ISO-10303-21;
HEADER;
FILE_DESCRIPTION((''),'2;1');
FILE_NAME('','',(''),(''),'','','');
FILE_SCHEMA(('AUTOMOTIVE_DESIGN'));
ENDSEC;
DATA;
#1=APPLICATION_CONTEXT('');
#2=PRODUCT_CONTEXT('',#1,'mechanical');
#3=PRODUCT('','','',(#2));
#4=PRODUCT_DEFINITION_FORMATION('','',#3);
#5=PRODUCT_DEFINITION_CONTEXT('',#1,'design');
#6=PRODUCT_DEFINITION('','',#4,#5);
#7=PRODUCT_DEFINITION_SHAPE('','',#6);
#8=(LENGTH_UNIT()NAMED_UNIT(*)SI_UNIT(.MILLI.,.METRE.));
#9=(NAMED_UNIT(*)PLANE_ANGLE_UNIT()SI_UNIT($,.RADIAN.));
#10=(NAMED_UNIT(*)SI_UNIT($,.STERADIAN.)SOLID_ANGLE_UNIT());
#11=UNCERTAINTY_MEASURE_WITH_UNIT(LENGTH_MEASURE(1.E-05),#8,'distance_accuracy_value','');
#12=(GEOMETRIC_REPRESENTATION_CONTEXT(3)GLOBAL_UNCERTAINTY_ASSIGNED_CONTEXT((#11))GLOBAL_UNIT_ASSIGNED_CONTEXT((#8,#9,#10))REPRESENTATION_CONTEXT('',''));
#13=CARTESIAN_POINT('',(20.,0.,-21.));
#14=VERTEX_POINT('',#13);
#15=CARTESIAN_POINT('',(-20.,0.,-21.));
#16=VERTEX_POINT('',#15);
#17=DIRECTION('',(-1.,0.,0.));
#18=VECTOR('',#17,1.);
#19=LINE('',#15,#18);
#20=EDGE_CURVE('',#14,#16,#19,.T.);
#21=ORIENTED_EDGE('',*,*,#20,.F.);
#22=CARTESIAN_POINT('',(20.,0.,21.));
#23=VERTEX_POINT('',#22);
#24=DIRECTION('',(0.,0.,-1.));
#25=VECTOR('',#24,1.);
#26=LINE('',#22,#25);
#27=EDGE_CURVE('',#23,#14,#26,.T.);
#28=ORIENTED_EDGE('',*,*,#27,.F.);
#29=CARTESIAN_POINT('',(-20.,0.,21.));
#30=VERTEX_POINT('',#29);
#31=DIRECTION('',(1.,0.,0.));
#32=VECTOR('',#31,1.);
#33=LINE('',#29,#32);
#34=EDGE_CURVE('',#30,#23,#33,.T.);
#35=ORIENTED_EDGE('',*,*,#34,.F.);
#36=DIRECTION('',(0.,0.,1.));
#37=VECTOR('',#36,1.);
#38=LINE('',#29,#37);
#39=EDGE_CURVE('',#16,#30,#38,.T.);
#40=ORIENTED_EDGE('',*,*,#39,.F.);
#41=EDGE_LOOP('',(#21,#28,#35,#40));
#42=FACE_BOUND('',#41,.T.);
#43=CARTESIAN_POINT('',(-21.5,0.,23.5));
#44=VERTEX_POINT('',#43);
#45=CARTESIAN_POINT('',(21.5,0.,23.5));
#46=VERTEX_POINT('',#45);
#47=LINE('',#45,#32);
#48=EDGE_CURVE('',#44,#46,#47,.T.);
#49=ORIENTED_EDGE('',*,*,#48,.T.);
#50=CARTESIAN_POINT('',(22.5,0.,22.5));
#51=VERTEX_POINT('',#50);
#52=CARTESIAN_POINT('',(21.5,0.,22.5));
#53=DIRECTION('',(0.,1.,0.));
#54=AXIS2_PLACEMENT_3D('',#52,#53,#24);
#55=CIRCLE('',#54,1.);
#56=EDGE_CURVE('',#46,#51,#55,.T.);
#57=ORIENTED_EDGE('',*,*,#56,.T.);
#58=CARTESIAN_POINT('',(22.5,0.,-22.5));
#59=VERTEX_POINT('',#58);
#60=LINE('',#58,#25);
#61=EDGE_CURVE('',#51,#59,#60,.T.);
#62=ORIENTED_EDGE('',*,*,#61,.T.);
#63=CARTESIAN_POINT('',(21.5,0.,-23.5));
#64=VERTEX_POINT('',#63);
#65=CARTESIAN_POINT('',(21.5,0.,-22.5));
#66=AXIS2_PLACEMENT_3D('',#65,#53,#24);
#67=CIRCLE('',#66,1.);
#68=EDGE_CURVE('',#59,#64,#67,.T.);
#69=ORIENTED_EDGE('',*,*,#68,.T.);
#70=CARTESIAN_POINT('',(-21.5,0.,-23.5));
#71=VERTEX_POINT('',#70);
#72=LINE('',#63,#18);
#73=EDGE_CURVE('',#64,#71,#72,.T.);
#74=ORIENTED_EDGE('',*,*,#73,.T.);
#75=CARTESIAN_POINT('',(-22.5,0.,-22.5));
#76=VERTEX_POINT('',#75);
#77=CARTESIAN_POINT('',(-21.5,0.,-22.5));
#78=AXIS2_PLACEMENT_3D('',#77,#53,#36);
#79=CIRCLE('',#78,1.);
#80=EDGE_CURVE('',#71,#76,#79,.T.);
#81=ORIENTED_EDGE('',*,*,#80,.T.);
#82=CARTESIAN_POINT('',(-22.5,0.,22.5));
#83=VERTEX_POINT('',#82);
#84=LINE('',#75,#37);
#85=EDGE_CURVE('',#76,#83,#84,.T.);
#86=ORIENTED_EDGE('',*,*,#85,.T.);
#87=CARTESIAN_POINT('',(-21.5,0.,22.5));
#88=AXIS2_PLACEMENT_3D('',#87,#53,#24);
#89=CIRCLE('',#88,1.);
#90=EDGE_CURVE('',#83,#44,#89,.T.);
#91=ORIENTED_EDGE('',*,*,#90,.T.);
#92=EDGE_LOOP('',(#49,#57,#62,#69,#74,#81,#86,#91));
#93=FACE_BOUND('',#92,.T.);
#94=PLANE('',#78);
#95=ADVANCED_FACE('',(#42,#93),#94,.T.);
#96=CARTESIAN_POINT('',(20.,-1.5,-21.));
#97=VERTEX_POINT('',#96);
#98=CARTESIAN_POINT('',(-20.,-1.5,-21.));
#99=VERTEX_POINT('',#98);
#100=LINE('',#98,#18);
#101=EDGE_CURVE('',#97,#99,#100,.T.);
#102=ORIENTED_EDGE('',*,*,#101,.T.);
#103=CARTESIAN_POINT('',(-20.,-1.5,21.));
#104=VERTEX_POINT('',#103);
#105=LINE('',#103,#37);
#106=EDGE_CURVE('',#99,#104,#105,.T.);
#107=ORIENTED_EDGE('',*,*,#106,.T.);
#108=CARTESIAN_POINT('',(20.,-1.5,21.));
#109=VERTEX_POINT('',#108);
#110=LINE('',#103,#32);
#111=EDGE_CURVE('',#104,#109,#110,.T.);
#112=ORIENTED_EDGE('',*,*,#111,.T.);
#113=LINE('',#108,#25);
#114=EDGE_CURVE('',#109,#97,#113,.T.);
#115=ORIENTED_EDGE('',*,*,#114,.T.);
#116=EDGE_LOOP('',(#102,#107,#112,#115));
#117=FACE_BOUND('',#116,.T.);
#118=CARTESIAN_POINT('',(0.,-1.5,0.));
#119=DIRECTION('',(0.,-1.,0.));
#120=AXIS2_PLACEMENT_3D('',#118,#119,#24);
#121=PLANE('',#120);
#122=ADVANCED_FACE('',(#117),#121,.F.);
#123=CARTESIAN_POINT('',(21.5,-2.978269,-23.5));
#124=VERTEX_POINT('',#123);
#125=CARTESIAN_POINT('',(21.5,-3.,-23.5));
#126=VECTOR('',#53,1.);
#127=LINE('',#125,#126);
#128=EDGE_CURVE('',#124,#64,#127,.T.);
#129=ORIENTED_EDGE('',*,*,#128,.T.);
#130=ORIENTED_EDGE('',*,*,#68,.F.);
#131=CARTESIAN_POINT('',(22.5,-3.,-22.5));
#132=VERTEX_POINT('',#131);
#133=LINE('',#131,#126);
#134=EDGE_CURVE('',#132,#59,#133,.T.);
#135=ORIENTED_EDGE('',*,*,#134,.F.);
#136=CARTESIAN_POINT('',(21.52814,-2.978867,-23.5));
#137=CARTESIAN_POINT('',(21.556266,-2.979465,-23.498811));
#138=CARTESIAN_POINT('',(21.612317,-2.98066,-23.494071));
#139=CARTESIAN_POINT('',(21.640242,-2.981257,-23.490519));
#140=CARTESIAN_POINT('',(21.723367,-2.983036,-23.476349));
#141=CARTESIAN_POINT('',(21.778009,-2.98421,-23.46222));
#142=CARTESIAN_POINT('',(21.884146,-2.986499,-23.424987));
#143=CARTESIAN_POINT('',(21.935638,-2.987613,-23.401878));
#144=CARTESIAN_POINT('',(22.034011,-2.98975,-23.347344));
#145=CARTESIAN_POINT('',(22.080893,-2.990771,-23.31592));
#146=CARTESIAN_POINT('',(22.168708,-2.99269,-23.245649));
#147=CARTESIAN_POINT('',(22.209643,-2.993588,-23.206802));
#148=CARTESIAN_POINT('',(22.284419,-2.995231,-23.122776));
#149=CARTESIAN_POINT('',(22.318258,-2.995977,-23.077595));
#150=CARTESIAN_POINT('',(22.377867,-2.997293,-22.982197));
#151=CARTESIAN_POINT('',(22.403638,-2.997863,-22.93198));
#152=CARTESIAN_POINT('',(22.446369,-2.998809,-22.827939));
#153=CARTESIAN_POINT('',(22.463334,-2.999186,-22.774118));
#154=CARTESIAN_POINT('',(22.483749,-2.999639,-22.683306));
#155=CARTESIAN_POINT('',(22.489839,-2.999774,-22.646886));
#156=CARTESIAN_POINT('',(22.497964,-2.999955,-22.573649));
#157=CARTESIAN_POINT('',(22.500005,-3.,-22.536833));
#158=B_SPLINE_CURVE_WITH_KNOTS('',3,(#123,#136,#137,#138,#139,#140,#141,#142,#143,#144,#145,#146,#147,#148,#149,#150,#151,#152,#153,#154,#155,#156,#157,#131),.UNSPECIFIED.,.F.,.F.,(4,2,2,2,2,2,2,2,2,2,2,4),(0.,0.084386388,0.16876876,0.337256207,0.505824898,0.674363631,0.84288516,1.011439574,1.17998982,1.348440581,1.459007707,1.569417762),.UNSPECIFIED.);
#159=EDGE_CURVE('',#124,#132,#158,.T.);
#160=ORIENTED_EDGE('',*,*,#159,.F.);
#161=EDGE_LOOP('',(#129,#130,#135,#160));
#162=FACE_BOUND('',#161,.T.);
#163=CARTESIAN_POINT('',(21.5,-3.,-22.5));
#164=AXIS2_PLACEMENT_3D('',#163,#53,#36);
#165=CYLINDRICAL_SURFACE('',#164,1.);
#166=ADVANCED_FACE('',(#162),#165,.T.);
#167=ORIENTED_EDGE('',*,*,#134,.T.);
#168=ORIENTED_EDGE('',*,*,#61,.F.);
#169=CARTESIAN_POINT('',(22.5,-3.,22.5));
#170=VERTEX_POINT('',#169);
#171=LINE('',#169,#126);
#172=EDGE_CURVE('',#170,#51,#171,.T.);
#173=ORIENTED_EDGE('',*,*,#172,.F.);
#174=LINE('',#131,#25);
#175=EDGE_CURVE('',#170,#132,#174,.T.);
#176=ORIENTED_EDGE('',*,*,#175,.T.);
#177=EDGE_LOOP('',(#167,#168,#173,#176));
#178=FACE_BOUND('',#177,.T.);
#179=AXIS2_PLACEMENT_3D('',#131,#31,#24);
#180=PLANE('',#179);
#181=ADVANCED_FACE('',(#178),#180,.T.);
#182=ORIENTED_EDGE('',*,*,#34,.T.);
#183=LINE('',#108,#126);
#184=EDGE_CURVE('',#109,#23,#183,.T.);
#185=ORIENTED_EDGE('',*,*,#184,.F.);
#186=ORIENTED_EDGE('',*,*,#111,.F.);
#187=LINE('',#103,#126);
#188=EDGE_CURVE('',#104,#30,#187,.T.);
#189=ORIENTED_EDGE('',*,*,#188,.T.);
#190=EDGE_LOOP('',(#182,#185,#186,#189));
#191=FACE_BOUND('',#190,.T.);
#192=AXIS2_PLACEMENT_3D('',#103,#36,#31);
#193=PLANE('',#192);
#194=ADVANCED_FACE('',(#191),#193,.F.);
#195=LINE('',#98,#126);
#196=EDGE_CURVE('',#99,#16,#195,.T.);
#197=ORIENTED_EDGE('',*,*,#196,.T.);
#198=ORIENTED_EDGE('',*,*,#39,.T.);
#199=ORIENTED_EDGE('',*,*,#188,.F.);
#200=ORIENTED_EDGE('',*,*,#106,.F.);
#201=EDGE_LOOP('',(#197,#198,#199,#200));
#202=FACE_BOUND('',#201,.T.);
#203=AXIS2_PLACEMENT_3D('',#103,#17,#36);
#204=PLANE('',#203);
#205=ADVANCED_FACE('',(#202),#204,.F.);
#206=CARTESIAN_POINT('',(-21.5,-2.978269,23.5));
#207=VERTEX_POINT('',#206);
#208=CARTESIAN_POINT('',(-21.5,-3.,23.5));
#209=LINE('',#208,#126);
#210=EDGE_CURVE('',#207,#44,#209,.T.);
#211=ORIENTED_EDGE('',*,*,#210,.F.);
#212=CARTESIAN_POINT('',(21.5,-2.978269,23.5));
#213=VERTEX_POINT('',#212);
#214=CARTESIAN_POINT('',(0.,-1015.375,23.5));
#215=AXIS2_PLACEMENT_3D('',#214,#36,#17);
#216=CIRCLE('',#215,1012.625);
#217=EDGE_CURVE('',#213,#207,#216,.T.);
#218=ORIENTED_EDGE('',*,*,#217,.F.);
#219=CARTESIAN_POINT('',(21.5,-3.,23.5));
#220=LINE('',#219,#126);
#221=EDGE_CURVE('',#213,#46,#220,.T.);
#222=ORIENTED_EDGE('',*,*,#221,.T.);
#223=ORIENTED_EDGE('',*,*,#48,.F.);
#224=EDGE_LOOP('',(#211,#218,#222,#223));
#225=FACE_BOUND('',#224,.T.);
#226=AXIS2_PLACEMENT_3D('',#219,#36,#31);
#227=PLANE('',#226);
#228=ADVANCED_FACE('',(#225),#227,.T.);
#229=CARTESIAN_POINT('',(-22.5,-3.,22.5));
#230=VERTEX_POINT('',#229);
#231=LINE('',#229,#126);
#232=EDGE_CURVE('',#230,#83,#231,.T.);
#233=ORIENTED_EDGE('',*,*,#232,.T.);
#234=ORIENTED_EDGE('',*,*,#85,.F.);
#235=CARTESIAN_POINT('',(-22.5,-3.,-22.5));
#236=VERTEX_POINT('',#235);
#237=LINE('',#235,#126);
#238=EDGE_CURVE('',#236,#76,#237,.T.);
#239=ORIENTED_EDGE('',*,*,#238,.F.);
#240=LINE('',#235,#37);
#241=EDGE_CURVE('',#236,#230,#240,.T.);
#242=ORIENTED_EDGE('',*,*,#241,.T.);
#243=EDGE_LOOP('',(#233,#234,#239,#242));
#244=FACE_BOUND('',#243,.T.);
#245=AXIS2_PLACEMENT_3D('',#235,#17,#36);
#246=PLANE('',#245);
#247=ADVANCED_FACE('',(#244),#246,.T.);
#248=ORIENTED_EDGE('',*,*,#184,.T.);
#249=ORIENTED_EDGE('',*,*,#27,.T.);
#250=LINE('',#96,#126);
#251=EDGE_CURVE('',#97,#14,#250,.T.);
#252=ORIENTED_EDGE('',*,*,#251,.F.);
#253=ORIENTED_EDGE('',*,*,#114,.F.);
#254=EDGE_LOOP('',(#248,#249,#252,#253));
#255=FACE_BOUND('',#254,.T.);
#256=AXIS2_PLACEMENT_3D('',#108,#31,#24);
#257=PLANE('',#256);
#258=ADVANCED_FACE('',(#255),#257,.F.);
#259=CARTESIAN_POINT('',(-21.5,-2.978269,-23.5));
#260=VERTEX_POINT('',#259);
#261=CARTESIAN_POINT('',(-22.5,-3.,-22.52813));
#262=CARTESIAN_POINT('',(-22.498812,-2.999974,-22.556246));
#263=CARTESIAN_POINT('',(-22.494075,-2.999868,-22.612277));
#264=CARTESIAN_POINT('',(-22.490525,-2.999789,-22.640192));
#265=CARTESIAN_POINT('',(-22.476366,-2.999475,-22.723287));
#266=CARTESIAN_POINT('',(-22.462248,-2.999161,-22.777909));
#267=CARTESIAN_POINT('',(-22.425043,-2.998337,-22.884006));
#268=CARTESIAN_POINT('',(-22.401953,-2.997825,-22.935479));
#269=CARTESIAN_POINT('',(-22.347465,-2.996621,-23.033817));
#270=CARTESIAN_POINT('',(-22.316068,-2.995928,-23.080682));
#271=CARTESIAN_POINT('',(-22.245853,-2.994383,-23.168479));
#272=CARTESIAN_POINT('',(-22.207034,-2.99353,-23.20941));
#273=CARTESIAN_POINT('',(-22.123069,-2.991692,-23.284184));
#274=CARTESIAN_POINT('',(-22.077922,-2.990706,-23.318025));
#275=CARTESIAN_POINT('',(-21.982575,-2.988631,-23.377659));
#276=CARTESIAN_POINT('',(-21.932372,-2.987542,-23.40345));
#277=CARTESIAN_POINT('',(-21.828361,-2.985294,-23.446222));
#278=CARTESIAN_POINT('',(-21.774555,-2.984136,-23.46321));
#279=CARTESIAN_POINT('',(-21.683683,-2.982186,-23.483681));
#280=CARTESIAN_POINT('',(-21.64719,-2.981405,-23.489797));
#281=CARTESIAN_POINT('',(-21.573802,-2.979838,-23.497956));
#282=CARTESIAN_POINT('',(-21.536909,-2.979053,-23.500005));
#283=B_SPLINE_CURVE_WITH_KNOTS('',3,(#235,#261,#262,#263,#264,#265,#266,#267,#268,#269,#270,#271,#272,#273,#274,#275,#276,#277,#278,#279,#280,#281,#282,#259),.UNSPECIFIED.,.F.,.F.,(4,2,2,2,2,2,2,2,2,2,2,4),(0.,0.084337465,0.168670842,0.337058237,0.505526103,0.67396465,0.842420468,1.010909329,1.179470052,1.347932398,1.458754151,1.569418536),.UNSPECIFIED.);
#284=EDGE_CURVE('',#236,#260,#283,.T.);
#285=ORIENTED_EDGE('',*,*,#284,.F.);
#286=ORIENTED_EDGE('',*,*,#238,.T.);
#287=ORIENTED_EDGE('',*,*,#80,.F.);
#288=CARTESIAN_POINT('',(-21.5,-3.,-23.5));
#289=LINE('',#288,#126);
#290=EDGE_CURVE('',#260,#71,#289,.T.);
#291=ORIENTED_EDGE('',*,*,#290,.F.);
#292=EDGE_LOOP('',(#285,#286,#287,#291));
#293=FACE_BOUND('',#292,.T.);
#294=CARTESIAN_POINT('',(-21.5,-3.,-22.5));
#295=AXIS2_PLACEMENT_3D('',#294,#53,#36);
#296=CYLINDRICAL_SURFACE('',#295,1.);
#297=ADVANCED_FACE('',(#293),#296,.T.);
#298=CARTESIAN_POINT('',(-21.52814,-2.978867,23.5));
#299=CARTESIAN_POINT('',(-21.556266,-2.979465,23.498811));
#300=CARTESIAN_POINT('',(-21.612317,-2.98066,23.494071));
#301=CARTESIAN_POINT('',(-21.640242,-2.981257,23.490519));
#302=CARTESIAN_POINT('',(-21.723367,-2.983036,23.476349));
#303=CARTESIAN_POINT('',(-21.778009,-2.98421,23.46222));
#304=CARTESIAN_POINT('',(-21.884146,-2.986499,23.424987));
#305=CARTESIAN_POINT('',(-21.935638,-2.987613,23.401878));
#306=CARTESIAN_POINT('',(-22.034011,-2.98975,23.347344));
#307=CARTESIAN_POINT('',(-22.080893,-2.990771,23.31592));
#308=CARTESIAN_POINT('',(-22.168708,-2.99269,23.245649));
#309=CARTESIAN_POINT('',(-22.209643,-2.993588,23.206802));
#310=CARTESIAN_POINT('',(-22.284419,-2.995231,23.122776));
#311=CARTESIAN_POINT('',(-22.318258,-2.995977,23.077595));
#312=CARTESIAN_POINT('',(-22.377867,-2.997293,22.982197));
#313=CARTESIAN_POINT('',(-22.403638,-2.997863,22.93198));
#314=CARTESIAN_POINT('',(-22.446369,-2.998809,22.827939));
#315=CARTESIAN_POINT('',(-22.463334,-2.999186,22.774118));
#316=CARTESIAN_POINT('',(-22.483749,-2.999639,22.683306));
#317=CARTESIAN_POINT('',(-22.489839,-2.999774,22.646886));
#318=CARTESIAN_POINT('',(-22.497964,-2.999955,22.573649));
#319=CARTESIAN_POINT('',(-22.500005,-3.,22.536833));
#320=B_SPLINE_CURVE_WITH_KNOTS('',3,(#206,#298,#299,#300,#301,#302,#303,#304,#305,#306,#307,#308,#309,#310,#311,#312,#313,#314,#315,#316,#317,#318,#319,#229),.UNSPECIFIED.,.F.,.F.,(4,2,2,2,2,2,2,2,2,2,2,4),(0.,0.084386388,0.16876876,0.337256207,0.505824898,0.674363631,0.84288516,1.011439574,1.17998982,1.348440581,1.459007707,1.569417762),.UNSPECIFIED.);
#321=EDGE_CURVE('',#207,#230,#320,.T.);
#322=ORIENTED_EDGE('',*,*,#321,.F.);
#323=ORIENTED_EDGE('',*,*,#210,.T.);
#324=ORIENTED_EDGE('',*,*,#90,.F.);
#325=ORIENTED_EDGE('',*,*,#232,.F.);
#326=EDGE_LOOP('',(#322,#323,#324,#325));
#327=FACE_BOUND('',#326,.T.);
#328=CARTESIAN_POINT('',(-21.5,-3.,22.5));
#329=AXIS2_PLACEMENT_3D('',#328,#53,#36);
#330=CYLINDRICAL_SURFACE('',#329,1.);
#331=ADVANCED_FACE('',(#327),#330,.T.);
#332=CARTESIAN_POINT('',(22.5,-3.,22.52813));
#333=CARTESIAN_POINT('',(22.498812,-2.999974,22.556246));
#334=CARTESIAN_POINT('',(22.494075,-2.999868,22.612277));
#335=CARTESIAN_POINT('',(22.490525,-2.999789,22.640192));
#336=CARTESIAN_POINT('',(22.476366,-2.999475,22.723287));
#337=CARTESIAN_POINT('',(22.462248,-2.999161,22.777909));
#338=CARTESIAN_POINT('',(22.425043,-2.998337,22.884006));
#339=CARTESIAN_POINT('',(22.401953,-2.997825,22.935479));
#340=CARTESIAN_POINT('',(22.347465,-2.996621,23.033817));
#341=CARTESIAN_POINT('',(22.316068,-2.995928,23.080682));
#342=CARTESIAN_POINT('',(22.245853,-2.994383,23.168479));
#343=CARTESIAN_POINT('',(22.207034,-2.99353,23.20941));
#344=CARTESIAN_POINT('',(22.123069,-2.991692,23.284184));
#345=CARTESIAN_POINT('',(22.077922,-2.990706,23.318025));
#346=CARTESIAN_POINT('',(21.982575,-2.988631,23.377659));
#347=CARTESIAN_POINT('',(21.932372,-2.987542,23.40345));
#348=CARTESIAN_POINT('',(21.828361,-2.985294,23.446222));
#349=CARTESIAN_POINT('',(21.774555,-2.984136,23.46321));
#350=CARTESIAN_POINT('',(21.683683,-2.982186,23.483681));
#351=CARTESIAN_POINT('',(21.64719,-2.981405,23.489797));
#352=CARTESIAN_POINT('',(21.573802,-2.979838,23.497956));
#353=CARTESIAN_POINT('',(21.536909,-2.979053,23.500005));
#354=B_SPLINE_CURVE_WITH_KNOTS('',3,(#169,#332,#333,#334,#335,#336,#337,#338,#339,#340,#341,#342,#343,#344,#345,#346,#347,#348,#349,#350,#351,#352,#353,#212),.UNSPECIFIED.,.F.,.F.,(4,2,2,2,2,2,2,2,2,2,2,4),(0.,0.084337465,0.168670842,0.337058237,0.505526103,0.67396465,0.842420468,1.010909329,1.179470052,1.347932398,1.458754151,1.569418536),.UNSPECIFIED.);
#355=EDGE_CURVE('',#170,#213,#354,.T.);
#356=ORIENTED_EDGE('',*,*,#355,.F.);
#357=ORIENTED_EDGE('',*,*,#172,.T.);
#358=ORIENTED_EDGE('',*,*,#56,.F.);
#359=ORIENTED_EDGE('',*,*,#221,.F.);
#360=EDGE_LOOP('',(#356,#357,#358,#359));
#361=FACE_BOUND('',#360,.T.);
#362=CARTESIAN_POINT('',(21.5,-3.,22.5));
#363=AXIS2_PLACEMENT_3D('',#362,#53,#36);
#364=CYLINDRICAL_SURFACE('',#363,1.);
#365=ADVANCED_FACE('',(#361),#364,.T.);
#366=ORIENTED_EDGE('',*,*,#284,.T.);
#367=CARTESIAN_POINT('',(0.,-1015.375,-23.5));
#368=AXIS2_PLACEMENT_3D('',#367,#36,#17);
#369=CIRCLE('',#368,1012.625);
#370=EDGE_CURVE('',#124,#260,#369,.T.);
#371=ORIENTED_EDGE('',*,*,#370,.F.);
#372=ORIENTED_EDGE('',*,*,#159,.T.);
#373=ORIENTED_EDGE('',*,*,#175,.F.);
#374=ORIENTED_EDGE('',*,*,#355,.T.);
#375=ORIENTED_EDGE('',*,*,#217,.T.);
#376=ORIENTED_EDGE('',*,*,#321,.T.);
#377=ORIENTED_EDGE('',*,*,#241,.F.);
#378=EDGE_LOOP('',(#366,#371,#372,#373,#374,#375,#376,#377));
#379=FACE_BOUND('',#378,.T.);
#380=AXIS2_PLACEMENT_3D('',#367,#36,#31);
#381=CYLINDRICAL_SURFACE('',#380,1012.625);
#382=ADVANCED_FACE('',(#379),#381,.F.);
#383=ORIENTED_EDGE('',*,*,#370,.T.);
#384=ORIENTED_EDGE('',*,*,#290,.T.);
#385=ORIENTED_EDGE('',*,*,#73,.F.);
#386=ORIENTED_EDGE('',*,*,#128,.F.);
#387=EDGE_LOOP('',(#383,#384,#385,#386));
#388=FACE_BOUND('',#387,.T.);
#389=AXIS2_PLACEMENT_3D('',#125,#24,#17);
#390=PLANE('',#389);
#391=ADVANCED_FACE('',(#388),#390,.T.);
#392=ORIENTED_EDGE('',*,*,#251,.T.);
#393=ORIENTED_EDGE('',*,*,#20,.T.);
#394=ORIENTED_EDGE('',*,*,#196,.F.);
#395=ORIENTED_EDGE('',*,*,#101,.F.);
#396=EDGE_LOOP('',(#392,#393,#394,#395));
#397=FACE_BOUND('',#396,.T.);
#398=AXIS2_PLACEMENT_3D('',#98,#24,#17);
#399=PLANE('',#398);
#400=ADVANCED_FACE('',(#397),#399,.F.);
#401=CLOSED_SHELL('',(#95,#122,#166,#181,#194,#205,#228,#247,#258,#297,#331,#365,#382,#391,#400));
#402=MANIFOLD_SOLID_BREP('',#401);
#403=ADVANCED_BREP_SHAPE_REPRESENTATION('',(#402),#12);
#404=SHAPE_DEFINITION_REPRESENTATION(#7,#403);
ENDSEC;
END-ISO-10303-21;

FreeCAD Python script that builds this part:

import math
import FreeCAD as App
import Part
import Sketcher

V = App.Vector
Q = App.Units.Quantity


def add_polygon(sketch, points):
    """Adds a closed chain of lines whose ends are joined by coincident constraints."""
    first, n = sketch.GeometryCount, len(points)
    for a, b in zip(points, points[1:] + points[:1]):
        sketch.addGeometry(Part.LineSegment(App.Vector(*a, 0), App.Vector(*b, 0)), False)
    for i in range(n):
        sketch.addConstraint(Sketcher.Constraint("Coincident", first + i, 2, first + (i + 1) % n, 1))

doc = App.newDocument("Part")
body = doc.addObject("PartDesign::Body", "Body")

sketch1 = body.newObject("Sketcher::SketchObject", "Sketch")
sketch1.AttachmentSupport = (doc.getObject("XZ_Plane"), [""])
sketch1.MapMode = "FlatFace"
sketch1.addGeometry(Part.LineSegment(V(21.5, -23.5, 0), V(-21.5, -23.5, 0)), False)
sketch1.addGeometry(Part.ArcOfCircle(Part.Circle(V(-21.5, -22.5, 0), V(0, 0, 1), 1), math.radians(-180), math.radians(-90)), False)
sketch1.addGeometry(Part.LineSegment(V(-22.5, -22.5, 0), V(-22.5, 22.5, 0)), False)
sketch1.addGeometry(Part.ArcOfCircle(Part.Circle(V(-21.5, 22.5, 0), V(0, 0, 1), 1), math.radians(90), math.radians(180)), False)
sketch1.addGeometry(Part.LineSegment(V(-21.5, 23.5, 0), V(21.5, 23.5, 0)), False)
sketch1.addGeometry(Part.ArcOfCircle(Part.Circle(V(21.5, 22.5, 0), V(0, 0, 1), 1), math.radians(0), math.radians(90)), False)
sketch1.addGeometry(Part.LineSegment(V(22.5, 22.5, 0), V(22.5, -22.5, 0)), False)
sketch1.addGeometry(Part.ArcOfCircle(Part.Circle(V(21.5, -22.5, 0), V(0, 0, 1), 1), math.radians(-90), math.radians(0)), False)
sketch1.addConstraint(Sketcher.Constraint("Tangent", 0, 2, 1, 2))
sketch1.addConstraint(Sketcher.Constraint("Tangent", 1, 1, 2, 1))
sketch1.addConstraint(Sketcher.Constraint("Tangent", 2, 2, 3, 2))
sketch1.addConstraint(Sketcher.Constraint("Tangent", 3, 1, 4, 1))
sketch1.addConstraint(Sketcher.Constraint("Tangent", 4, 2, 5, 2))
sketch1.addConstraint(Sketcher.Constraint("Tangent", 5, 1, 6, 1))
sketch1.addConstraint(Sketcher.Constraint("Tangent", 6, 2, 7, 2))
sketch1.addConstraint(Sketcher.Constraint("Tangent", 7, 1, 0, 1))
sketch1.addConstraint(Sketcher.Constraint("Horizontal", 0))
sketch1.addConstraint(Sketcher.Constraint("Vertical", 2))
sketch1.addConstraint(Sketcher.Constraint("Horizontal", 4))
sketch1.addConstraint(Sketcher.Constraint("Vertical", 6))
sketch1.addConstraint(Sketcher.Constraint("Equal", 1, 3))
sketch1.addConstraint(Sketcher.Constraint("Equal", 3, 5))
sketch1.addConstraint(Sketcher.Constraint("Equal", 5, 7))
sketch1.addConstraint(Sketcher.Constraint("Symmetric", 1, 3, 5, 3, -1, 1))
sketch1.addConstraint(Sketcher.Constraint("Radius", 1, Q("1 mm")))
sketch1.addConstraint(Sketcher.Constraint("DistanceX", 0, 2, 0, 1, Q("43 mm")))
sketch1.addConstraint(Sketcher.Constraint("DistanceY", 2, 1, 2, 2, Q("45 mm")))
pad1 = body.newObject("PartDesign::Pad", "Pad")
pad1.Profile = sketch1
pad1.Length = 3

sketch2 = body.newObject("Sketcher::SketchObject", "Sketch001")
sketch2.AttachmentSupport = (doc.getObject("XY_Plane"), [""])
sketch2.MapMode = "FlatFace"
sketch2.addGeometry(Part.LineSegment(V(-22, -3, 0), V(22, -3, 0)), False)
sketch2.addGeometry(Part.ArcOfCircle(Part.Circle(V(0, -1015, 0), V(0, 0, 1), 1013), math.radians(88.73), math.radians(91.27)), False)
sketch2.addConstraint(Sketcher.Constraint("Coincident", 0, 1, 1, 2))
sketch2.addConstraint(Sketcher.Constraint("Coincident", 1, 1, 0, 2))
sketch2.addConstraint(Sketcher.Constraint("Horizontal", 0))
sketch2.addConstraint(Sketcher.Constraint("PointOnObject", 1, 3, -2))
sketch2.addConstraint(Sketcher.Constraint("DistanceX", 0, 1, 0, 2, Q("45 mm")))
sketch2.addConstraint(Sketcher.Constraint("DistanceY", 0, 1, -1, 1, Q("3 mm")))
sketch2.addConstraint(Sketcher.Constraint("Radius", 1, Q("1012.625 mm")))
pocket1 = body.newObject("PartDesign::Pocket", "Pocket")
pocket1.Profile = sketch2
pocket1.Type = "ThroughAll"
pocket1.Midplane = True

sketch3 = body.newObject("Sketcher::SketchObject", "Sketch002")
sketch3.AttachmentSupport = (doc.getObject("XZ_Plane"), [""])
sketch3.MapMode = "FlatFace"
add_polygon(sketch3, [(-20, -21), (-20, 21), (20, 21), (20, -21)])
sketch3.addConstraint(Sketcher.Constraint("Vertical", 0))
sketch3.addConstraint(Sketcher.Constraint("Horizontal", 1))
sketch3.addConstraint(Sketcher.Constraint("Vertical", 2))
sketch3.addConstraint(Sketcher.Constraint("Horizontal", 3))
sketch3.addConstraint(Sketcher.Constraint("Symmetric", 0, 2, 2, 2, -1, 1))
sketch3.addConstraint(Sketcher.Constraint("DistanceX", 1, 1, 1, 2, Q("40 mm")))
sketch3.addConstraint(Sketcher.Constraint("DistanceY", 0, 1, 0, 2, Q("42 mm")))
pocket2 = body.newObject("PartDesign::Pocket", "Pocket001")
pocket2.Profile = sketch3
pocket2.Length = 1.5
pocket2.Reversed = True

doc.recompute()
